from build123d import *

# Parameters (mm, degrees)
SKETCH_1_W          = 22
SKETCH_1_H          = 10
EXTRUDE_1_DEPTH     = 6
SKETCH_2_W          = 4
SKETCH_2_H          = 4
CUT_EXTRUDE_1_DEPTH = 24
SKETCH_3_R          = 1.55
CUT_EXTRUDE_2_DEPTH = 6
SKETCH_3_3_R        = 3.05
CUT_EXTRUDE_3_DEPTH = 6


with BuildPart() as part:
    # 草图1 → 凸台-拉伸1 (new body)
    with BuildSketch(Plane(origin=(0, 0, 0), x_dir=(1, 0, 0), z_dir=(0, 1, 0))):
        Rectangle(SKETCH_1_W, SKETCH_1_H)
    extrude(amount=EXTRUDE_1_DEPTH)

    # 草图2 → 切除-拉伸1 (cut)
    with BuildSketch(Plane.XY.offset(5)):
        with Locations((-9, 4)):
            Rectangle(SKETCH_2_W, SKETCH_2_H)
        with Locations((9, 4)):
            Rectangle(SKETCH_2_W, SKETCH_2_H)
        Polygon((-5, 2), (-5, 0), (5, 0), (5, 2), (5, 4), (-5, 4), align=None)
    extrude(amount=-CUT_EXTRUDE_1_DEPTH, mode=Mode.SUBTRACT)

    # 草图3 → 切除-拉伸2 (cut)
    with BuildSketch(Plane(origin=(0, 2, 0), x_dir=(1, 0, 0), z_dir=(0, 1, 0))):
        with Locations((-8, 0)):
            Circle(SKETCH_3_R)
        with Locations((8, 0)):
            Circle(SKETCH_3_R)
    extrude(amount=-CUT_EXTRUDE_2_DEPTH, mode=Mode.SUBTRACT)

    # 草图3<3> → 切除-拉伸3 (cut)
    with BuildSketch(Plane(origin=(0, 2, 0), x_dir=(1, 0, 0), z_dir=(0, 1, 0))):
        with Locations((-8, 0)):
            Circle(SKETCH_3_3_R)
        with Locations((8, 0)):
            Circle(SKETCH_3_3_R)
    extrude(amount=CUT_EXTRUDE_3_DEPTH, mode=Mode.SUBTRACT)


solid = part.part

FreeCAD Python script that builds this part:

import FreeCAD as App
import Part
import Sketcher
from FreeCAD import Vector


def add_polygon(sketch, points):
    """Adds a closed chain of lines whose ends are joined by coincident constraints."""
    first, n = sketch.GeometryCount, len(points)
    for a, b in zip(points, points[1:] + points[:1]):
        sketch.addGeometry(Part.LineSegment(App.Vector(*a, 0), App.Vector(*b, 0)), False)
    for i in range(n):
        sketch.addConstraint(Sketcher.Constraint("Coincident", first + i, 2, first + (i + 1) % n, 1))

doc = App.newDocument("Part")
params = doc.addObject("Spreadsheet::Sheet", "Params")
for row, (alias, value) in enumerate([
    ("sketch1_width", "22 mm"),
    ("sketch1_height", "10 mm"),
    ("pad1_length", "6 mm"),
    ("sketch2_width", "4 mm"),
    ("sketch2_width2", "10 mm"),
    ("pocket1_length", "24 mm"),
    ("sketch3_diameter", "3.1 mm"),
    ("pocket2_length", "6 mm"),
    ("sketch4_diameter", "6.1 mm"),
    ("pocket3_length", "6 mm"),
], start=1):
    params.set(f"A{row}", alias)
    params.set(f"B{row}", "=" + value)
    params.setAlias(f"B{row}", alias)

body = doc.addObject("PartDesign::Body", "Body")

sketch1 = doc.addObject("Sketcher::SketchObject", "Sketch")
body.addObject(sketch1)
sketch1.AttachmentSupport = (doc.XZ_Plane, [""])
sketch1.MapMode = "FlatFace"
add_polygon(sketch1, [(-11, -5), (-11, 5), (11, 5), (11, -5)])
sketch1.addConstraint([
    Sketcher.Constraint("Vertical", 0),
    Sketcher.Constraint("Horizontal", 1),
    Sketcher.Constraint("Vertical", 2),
    Sketcher.Constraint("Horizontal", 3),
    Sketcher.Constraint("Symmetric", 0, 2, 2, 2, -1, 1),
    Sketcher.Constraint("DistanceX", 1, 1, 1, 2, 22.0),
    Sketcher.Constraint("DistanceY", 0, 1, 0, 2, 10.0),
])
sketch1.setExpression("Constraints[9]", "Params.sketch1_width")
sketch1.setExpression("Constraints[10]", "Params.sketch1_height")
pad1 = doc.addObject("PartDesign::Pad", "Pad")
body.addObject(pad1)
pad1.Profile = sketch1
pad1.setExpression("Length", "Params.pad1_length")
pad1.Reversed = True

sketch2 = doc.addObject("Sketcher::SketchObject", "Sketch001")
body.addObject(sketch2)
sketch2.AttachmentSupport = (doc.XY_Plane, [""])
sketch2.MapMode = "FlatFace"
sketch2.AttachmentOffset = App.Placement(Vector(0, 0, 5), App.Rotation())
add_polygon(sketch2, [(-11, 6), (-11, 2), (-7, 2), (-7, 6)])
add_polygon(sketch2, [(7, 6), (7, 2), (11, 2), (11, 6)])
add_polygon(sketch2, [(-5, 0), (5, 0), (5, 4), (-5, 4)])
sketch2.addConstraint([
    Sketcher.Constraint("Vertical", 0),
    Sketcher.Constraint("Horizontal", 1),
    Sketcher.Constraint("Vertical", 2),
    Sketcher.Constraint("Horizontal", 3),
    Sketcher.Constraint("Vertical", 4),
    Sketcher.Constraint("Horizontal", 5),
    Sketcher.Constraint("Vertical", 6),
    Sketcher.Constraint("Horizontal", 7),
    Sketcher.Constraint("Horizontal", 8),
    Sketcher.Constraint("Vertical", 9),
    Sketcher.Constraint("Horizontal", 10),
    Sketcher.Constraint("Vertical", 11),
    Sketcher.Constraint("Symmetric", 8, 2, 11, 2, -1, 1),
    Sketcher.Constraint("Symmetric", 1, 2, 4, 2, -2),
    Sketcher.Constraint("Symmetric", 3, 2, 6, 2, -2),
    Sketcher.Constraint("Equal", 7, 0),
    Sketcher.Constraint("Equal", 6, 9),
    Sketcher.Constraint("DistanceX", 1, 1, 1, 2, 4.0),
    Sketcher.Constraint("DistanceX", 8, 1, 8, 2, 10.0),
    Sketcher.Constraint("DistanceX", 0, 2, -1, 1, 11.0),
    Sketcher.Constraint("DistanceY", -1, 1, 0, 2, 2.0),
])
sketch2.setExpression("Constraints[29]", "Params.sketch2_width")
sketch2.setExpression("Constraints[30]", "Params.sketch2_width2")
pocket1 = doc.addObject("PartDesign::Pocket", "Pocket")
body.addObject(pocket1)
pocket1.Profile = sketch2
pocket1.setExpression("Length", "Params.pocket1_length")

sketch3 = doc.addObject("Sketcher::SketchObject", "Sketch002")
body.addObject(sketch3)
sketch3.AttachmentSupport = (doc.XZ_Plane, [""])
sketch3.MapMode = "FlatFace"
sketch3.AttachmentOffset = App.Placement(Vector(0, 0, -2), App.Rotation())
sketch3.addGeometry([
    Part.Circle(Vector(-8, 0, 0), Vector(0, 0, 1), 1.6),
    Part.Circle(Vector(8, 0, 0), Vector(0, 0, 1), 1.6),
], False)
sketch3.addConstraint([
    Sketcher.Constraint("Equal", 0, 1),
    Sketcher.Constraint("Symmetric", 0, 3, 1, 3, -1, 1),
    Sketcher.Constraint("PointOnObject", 0, 3, -1),
    Sketcher.Constraint("Diameter", 0, 3.1),
    Sketcher.Constraint("DistanceX", 0, 3, -1, 1, 8.0),
])
sketch3.setExpression("Constraints[3]", "Params.sketch3_diameter")
pocket2 = doc.addObject("PartDesign::Pocket", "Pocket001")
body.addObject(pocket2)
pocket2.Profile = sketch3
pocket2.setExpression("Length", "Params.pocket2_length")
pocket2.Reversed = True

sketch4 = doc.addObject("Sketcher::SketchObject", "Sketch003")
body.addObject(sketch4)
sketch4.AttachmentSupport = (doc.XZ_Plane, [""])
sketch4.MapMode = "FlatFace"
sketch4.AttachmentOffset = App.Placement(Vector(0, 0, -2), App.Rotation())
sketch4.addGeometry([
    Part.Circle(Vector(-8, 0, 0), Vector(0, 0, 1), 3),
    Part.Circle(Vector(8, 0, 0), Vector(0, 0, 1), 3),
], False)
sketch4.addConstraint([
    Sketcher.Constraint("Equal", 0, 1),
    Sketcher.Constraint("Symmetric", 0, 3, 1, 3, -1, 1),
    Sketcher.Constraint("PointOnObject", 0, 3, -1),
    Sketcher.Constraint("Diameter", 0, 6.1),
    Sketcher.Constraint("DistanceX", 0, 3, -1, 1, 8.0),
])
sketch4.setExpression("Constraints[3]", "Params.sketch4_diameter")
pocket3 = doc.addObject("PartDesign::Pocket", "Pocket002")
body.addObject(pocket3)
pocket3.Profile = sketch4
pocket3.setExpression("Length", "Params.pocket3_length")

doc.recompute()
